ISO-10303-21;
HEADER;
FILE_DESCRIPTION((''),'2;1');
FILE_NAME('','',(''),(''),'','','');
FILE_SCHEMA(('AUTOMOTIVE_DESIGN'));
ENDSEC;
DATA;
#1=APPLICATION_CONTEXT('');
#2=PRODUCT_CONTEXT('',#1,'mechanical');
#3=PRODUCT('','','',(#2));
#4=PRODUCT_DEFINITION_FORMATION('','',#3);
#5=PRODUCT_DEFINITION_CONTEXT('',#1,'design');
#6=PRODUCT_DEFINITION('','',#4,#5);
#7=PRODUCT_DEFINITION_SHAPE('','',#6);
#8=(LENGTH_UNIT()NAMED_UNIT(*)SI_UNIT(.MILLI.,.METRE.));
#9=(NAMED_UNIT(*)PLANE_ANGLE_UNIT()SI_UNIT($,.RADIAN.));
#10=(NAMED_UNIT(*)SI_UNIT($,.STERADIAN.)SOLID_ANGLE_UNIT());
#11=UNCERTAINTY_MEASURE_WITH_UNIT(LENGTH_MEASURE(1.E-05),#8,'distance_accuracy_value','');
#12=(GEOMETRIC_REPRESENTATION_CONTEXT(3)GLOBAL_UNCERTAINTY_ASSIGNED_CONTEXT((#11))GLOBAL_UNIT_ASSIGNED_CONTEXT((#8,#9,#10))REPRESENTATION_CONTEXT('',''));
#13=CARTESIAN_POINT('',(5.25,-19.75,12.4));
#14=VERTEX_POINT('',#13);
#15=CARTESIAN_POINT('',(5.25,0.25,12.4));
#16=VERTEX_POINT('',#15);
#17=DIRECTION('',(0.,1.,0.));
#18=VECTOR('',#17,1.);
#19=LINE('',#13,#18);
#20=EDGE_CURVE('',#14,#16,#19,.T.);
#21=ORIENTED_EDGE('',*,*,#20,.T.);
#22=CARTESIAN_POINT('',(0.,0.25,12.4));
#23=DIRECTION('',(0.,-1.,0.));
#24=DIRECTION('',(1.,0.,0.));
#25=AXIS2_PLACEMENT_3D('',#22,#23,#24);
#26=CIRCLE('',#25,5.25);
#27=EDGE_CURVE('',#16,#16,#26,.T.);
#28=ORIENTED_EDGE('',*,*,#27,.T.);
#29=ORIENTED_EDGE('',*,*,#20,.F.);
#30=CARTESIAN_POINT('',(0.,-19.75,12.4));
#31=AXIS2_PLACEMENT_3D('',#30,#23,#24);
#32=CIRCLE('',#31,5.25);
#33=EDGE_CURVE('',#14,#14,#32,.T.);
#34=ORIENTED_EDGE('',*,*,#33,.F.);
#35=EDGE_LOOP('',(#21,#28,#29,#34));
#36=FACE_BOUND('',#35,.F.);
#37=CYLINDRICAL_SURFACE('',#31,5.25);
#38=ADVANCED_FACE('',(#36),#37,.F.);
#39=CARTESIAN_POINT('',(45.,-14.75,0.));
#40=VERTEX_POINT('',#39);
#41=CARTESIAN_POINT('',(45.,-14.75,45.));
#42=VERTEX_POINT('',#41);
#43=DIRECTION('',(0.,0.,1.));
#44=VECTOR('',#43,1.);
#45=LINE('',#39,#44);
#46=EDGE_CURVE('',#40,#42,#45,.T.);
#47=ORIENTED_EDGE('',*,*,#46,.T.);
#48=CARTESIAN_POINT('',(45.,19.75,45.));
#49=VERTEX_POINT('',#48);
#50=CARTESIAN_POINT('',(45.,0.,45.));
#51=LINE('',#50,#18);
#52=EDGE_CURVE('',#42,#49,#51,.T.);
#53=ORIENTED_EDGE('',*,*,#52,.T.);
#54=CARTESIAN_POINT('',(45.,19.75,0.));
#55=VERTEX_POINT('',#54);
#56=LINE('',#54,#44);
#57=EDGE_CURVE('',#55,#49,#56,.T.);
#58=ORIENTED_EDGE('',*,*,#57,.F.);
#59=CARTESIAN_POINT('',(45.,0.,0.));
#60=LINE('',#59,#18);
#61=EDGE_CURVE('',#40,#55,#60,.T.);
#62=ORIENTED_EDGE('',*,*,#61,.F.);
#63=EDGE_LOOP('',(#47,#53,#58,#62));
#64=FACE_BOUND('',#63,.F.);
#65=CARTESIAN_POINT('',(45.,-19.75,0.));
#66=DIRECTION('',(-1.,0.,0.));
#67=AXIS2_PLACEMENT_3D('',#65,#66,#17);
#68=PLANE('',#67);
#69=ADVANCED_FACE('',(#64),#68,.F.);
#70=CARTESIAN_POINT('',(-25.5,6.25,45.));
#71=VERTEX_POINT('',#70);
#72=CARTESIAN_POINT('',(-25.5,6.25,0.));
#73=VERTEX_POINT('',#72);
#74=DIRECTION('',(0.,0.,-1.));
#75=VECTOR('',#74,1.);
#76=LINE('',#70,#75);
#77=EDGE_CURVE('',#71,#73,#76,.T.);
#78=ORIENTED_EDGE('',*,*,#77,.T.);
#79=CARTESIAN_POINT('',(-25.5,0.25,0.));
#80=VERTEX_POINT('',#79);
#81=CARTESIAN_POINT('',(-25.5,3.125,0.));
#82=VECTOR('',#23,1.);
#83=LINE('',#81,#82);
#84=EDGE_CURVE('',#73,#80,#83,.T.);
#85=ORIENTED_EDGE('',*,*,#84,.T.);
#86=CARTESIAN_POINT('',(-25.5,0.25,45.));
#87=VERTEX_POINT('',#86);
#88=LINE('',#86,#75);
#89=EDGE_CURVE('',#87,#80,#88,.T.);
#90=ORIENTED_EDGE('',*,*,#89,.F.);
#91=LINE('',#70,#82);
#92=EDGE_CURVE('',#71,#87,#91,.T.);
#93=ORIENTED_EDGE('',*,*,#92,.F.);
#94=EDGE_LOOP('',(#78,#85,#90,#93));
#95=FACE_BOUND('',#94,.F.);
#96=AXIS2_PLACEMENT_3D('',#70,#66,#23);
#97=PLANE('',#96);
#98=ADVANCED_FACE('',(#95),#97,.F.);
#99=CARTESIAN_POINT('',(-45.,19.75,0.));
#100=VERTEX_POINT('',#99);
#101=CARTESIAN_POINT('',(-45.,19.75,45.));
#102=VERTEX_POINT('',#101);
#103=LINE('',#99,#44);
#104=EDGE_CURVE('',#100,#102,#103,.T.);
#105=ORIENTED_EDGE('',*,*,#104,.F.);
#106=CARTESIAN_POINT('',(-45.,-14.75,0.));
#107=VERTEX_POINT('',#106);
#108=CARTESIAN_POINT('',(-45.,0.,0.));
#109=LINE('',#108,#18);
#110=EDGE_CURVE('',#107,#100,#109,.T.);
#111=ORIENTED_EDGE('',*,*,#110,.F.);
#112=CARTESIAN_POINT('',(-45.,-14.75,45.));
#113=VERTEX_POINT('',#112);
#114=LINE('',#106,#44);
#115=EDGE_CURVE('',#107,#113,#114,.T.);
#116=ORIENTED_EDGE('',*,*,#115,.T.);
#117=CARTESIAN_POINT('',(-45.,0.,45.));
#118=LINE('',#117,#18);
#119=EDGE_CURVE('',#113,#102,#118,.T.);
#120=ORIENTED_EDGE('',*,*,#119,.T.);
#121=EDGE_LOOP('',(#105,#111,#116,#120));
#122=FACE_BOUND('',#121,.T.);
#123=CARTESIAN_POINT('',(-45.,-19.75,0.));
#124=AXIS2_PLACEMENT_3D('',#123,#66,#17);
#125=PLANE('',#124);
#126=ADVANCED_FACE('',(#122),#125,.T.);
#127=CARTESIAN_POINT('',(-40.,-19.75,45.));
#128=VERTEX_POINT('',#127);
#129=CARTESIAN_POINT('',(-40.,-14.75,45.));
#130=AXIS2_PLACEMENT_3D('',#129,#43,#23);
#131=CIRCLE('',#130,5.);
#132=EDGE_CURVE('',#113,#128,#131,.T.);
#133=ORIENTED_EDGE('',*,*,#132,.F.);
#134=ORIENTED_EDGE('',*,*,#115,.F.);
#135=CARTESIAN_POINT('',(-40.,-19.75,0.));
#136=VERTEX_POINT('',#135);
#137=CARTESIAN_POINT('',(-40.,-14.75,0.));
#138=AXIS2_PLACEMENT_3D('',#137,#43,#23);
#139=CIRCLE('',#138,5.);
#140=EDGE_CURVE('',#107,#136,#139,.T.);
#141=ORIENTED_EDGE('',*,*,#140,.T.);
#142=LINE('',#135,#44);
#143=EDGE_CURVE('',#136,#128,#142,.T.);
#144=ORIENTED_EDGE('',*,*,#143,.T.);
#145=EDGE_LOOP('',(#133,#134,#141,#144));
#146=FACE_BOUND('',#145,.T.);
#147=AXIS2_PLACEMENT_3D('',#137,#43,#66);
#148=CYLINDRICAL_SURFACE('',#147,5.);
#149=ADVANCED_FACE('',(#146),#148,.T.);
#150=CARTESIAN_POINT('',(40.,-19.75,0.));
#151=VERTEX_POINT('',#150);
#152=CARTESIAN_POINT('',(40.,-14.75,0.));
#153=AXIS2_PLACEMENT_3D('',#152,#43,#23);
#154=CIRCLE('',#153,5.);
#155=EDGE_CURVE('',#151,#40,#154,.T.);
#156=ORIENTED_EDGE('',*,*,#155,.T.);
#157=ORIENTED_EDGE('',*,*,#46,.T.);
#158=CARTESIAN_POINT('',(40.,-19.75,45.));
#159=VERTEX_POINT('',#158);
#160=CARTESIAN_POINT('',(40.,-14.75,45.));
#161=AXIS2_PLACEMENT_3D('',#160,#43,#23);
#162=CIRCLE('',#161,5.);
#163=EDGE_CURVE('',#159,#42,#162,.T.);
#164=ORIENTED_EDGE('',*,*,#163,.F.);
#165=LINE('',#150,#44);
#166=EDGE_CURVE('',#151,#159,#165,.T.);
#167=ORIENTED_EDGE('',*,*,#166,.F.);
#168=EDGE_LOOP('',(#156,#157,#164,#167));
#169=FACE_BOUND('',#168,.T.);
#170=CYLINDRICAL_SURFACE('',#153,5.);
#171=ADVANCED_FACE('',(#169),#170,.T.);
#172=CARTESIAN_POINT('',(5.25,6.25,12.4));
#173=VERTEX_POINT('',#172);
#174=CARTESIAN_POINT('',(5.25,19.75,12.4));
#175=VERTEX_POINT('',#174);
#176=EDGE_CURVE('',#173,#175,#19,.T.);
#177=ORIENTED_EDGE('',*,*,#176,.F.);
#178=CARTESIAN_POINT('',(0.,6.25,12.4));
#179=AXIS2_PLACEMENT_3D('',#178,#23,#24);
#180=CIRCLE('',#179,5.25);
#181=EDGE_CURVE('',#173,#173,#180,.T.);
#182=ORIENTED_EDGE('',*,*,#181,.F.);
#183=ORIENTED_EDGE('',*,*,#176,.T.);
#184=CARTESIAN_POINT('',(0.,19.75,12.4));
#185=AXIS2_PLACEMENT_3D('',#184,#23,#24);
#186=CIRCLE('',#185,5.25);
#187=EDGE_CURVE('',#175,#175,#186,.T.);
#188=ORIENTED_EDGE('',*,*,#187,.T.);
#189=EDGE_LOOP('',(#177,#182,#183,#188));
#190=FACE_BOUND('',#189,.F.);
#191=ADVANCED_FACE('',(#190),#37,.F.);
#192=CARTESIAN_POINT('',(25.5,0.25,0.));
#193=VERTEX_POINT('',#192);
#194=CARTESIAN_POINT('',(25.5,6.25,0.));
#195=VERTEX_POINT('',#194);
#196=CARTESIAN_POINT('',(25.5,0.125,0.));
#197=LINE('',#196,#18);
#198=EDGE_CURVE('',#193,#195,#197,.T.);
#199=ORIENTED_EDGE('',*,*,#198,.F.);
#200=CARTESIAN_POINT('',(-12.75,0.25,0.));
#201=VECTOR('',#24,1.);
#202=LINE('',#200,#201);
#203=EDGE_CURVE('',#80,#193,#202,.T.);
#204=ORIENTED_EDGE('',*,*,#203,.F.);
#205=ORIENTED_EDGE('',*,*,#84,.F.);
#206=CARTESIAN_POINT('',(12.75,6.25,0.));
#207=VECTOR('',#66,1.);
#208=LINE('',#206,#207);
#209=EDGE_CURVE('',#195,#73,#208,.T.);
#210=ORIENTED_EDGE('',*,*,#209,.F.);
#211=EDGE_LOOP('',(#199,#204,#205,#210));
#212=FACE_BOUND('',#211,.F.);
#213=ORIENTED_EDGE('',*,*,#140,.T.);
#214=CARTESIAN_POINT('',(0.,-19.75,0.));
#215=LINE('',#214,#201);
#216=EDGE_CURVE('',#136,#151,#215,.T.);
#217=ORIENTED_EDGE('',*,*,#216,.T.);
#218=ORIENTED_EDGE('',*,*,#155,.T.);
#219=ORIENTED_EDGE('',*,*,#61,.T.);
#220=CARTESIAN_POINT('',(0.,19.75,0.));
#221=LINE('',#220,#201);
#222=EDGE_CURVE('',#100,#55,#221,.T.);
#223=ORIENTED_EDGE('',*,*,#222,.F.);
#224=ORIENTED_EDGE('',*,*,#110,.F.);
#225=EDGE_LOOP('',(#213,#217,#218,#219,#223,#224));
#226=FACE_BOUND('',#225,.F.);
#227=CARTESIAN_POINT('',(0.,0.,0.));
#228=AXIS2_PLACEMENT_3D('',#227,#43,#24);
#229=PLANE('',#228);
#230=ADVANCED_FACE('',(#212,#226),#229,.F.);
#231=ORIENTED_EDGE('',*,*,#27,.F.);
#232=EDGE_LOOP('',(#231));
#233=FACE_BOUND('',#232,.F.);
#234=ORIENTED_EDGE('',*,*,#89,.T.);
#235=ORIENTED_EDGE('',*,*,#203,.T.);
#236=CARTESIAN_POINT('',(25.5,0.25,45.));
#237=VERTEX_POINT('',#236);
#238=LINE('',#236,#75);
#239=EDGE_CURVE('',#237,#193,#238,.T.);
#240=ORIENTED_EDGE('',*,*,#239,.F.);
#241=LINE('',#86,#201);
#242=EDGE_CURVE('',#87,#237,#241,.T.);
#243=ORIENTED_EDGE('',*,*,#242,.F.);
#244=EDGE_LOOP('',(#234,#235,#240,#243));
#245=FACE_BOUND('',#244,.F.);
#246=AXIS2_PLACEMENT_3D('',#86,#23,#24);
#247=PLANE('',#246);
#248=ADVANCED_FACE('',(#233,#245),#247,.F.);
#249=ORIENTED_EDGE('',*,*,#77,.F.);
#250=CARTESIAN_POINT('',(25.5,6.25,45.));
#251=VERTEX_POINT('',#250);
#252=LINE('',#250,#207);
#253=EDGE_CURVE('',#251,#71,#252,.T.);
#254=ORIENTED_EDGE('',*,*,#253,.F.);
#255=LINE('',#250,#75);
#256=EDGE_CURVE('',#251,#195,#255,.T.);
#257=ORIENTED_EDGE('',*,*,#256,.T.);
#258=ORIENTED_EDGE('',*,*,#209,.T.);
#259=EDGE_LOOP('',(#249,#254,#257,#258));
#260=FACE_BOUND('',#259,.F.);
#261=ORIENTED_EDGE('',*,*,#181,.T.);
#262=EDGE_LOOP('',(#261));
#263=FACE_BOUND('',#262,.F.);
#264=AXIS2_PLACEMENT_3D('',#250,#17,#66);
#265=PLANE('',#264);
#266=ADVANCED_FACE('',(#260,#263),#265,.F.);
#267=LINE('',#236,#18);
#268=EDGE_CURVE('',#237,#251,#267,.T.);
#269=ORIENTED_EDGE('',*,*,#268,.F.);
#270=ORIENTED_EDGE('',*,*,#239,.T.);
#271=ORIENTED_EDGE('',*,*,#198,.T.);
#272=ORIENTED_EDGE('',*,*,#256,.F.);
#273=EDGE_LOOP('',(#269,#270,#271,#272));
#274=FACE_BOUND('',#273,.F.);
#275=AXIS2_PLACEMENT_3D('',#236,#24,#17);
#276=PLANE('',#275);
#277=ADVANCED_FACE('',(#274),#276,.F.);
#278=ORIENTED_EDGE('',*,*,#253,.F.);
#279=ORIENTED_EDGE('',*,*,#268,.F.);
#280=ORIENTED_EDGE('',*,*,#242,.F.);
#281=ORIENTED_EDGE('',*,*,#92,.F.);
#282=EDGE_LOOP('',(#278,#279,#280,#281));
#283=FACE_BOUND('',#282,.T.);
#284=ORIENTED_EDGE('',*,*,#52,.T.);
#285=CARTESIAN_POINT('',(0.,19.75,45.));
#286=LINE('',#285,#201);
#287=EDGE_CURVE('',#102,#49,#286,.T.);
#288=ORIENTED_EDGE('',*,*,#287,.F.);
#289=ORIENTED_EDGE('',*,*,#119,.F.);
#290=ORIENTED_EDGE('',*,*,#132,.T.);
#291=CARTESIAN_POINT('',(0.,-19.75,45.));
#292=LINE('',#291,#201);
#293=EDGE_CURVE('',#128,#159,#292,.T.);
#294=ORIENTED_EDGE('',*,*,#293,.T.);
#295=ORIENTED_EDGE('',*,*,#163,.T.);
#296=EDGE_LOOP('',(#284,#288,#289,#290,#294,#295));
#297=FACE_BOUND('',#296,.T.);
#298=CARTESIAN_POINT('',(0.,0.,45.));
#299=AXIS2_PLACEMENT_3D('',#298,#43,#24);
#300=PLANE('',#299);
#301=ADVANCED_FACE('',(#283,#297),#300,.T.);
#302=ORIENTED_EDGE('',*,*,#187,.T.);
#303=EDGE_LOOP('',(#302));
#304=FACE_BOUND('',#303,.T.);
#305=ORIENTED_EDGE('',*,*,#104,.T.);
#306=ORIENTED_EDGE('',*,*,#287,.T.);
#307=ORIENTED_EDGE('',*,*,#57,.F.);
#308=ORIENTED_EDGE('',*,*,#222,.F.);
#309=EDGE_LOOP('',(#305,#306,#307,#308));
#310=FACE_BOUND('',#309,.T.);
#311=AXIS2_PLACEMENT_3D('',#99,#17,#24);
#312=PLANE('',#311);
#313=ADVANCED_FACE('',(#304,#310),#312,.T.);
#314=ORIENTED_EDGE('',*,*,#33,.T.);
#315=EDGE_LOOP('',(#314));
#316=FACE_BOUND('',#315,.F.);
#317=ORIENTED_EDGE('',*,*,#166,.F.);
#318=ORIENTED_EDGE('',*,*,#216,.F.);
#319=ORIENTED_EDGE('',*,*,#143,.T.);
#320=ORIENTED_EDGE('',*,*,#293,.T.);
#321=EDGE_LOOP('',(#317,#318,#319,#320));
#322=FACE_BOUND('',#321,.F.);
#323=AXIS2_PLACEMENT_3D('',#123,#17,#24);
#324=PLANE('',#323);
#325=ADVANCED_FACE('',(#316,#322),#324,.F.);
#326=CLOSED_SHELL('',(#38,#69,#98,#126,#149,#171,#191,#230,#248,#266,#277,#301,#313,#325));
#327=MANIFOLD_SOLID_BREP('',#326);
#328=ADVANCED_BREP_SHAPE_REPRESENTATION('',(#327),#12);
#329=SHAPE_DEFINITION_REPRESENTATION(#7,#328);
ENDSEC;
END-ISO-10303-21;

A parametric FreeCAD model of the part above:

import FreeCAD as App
import Part
import Sketcher

V = App.Vector


def edges_at(feature, points):
    """Names of the edges that pass closest to the given points."""
    edges = feature.Shape.Edges
    near = lambda p: min(range(len(edges)), key=lambda i: edges[i].distToShape(Part.Vertex(*p))[0])
    return sorted({f"Edge{near(p) + 1}" for p in points})

doc = App.newDocument("Part")
body = doc.addObject("PartDesign::Body", "Body")

# Sketch on XY plane
sketch1 = body.newObject("Sketcher::SketchObject", "Sketch")
sketch1.AttachmentSupport = (doc.getObject("XY_Plane"), [""])
sketch1.MapMode = "FlatFace"
sketch1.addGeometry([
    Part.LineSegment(V(-45, 20, 0), V(-45, -20, 0)),
    Part.LineSegment(V(-45, -20, 0), V(45, -20, 0)),
    Part.LineSegment(V(45, -20, 0), V(45, 20, 0)),
    Part.LineSegment(V(45, 20, 0), V(-45, 20, 0)),
], False)
sketch1.addConstraint([
    Sketcher.Constraint("Coincident", 0, 2, 1, 1),
    Sketcher.Constraint("Coincident", 1, 2, 2, 1),
    Sketcher.Constraint("Coincident", 2, 2, 3, 1),
    Sketcher.Constraint("Coincident", 3, 2, 0, 1),
    Sketcher.Constraint("Vertical", 0),
    Sketcher.Constraint("Horizontal", 1),
    Sketcher.Constraint("Vertical", 2),
    Sketcher.Constraint("Horizontal", 3),
    Sketcher.Constraint("Symmetric", 0, 2, 2, 2, -1, 1),
    Sketcher.Constraint("DistanceX", 1, 1, 1, 2, 90.0),
    Sketcher.Constraint("DistanceY", 0, 2, 0, 1, 39.5),
])
pad1 = body.newObject("PartDesign::Pad", "Pad")
pad1.Profile = sketch1
pad1.Length = 45

# Sketch on XZ plane
sketch2 = body.newObject("Sketcher::SketchObject", "Sketch001")
sketch2.AttachmentSupport = (doc.getObject("XZ_Plane"), [""])
sketch2.MapMode = "FlatFace"
sketch2.AttachmentOffset = App.Placement(V(0, 0, 19.75), App.Rotation())
sketch2.addGeometry(Part.Circle(V(0, 12, 0), V(0, 0, 1), 5), False)
sketch2.addConstraint([
    Sketcher.Constraint("PointOnObject", 0, 3, -2),
    Sketcher.Constraint("Diameter", 0, 10.5),
    Sketcher.Constraint("DistanceY", -1, 1, 0, 3, 12.4),
])
pocket1 = body.newObject("PartDesign::Pocket", "Pocket")
pocket1.Profile = sketch2
pocket1.Type = "ThroughAll"

# Sketch on XY plane
sketch3 = body.newObject("Sketcher::SketchObject", "Sketch002")
sketch3.AttachmentSupport = (doc.getObject("XY_Plane"), [""])
sketch3.MapMode = "FlatFace"
sketch3.AttachmentOffset = App.Placement(V(0, 0, 45), App.Rotation())
sketch3.addGeometry([
    Part.LineSegment(V(26, 6, 0), V(-26, 6, 0)),
    Part.LineSegment(V(-26, 6, 0), V(-26, 0, 0)),
    Part.LineSegment(V(-26, 0, 0), V(26, 0, 0)),
    Part.LineSegment(V(26, 0, 0), V(26, 6, 0)),
], False)
sketch3.addConstraint([
    Sketcher.Constraint("Coincident", 0, 2, 1, 1),
    Sketcher.Constraint("Coincident", 1, 2, 2, 1),
    Sketcher.Constraint("Coincident", 2, 2, 3, 1),
    Sketcher.Constraint("Coincident", 3, 2, 0, 1),
    Sketcher.Constraint("Horizontal", 0),
    Sketcher.Constraint("Vertical", 1),
    Sketcher.Constraint("Horizontal", 2),
    Sketcher.Constraint("Vertical", 3),
    Sketcher.Constraint("DistanceX", 0, 2, 0, 1, 51.0),
    Sketcher.Constraint("DistanceY", 1, 2, 1, 1, 6.0),
    Sketcher.Constraint("DistanceX", 0, 2, -1, 1, 25.5),
    Sketcher.Constraint("DistanceY", -1, 1, 0, 2, 6.25),
])
pocket2 = body.newObject("PartDesign::Pocket", "Pocket001")
pocket2.Profile = sketch3
pocket2.Type = "ThroughAll"
doc.recompute()

fillet = body.newObject("PartDesign::Fillet", "Fillet")
fillet.Base = (pocket2, edges_at(pocket2, [(-45, -19.75, 22.5), (45, -19.75, 22.5)]))
fillet.Radius = 5

doc.recompute()
